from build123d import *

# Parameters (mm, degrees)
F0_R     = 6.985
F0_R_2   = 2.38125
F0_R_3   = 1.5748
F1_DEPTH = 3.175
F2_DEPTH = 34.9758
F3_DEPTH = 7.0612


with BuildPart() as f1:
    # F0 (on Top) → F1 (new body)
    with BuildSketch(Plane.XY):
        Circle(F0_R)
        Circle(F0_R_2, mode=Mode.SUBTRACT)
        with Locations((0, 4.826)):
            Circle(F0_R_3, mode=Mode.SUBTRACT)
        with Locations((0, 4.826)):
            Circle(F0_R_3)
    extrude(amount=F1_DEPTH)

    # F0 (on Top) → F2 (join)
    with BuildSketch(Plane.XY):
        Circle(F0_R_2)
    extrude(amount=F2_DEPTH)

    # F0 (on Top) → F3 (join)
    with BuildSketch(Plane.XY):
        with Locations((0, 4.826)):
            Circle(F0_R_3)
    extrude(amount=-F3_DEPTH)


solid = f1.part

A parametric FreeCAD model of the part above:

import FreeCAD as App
import Part
import Sketcher
from FreeCAD import Vector
Q = App.Units.Quantity

doc = App.newDocument("Part")
body = doc.addObject("PartDesign::Body", "Body")

# Sketch on XY plane
sketch1 = doc.addObject("Sketcher::SketchObject", "Sketch")
body.addObject(sketch1)
sketch1.AttachmentSupport = (doc.XY_Plane, [""])
sketch1.MapMode = "FlatFace"
sketch1.addGeometry(Part.Circle(Vector(0, 0, 0), Vector(0, 0, 1), 7), False)
sketch1.addGeometry(Part.Circle(Vector(0, 0, 0), Vector(0, 0, 1), 2.4), False)
sketch1.addConstraint(Sketcher.Constraint("Coincident", 0, 3, -1, 1))
sketch1.addConstraint(Sketcher.Constraint("Coincident", 1, 3, -1, 1))
sketch1.addConstraint(Sketcher.Constraint("Diameter", 0, Q("0.55 in")))
sketch1.addConstraint(Sketcher.Constraint("Diameter", 1, Q("0.1875 in")))
pad1 = doc.addObject("PartDesign::Pad", "Pad")
body.addObject(pad1)
pad1.Profile = sketch1
pad1.Length = Q("0.125 in")

# Sketch on XY plane
sketch2 = doc.addObject("Sketcher::SketchObject", "Sketch001")
body.addObject(sketch2)
sketch2.AttachmentSupport = (doc.XY_Plane, [""])
sketch2.MapMode = "FlatFace"
sketch2.addGeometry(Part.Circle(Vector(0, 0, 0), Vector(0, 0, 1), 2.4), False)
sketch2.addConstraint(Sketcher.Constraint("Coincident", 0, 3, -1, 1))
sketch2.addConstraint(Sketcher.Constraint("Diameter", 0, Q("0.1875 in")))
pad2 = doc.addObject("PartDesign::Pad", "Pad001")
body.addObject(pad2)
pad2.Profile = sketch2
pad2.Length = Q("1.377 in")

# Sketch on XY plane
sketch3 = doc.addObject("Sketcher::SketchObject", "Sketch002")
body.addObject(sketch3)
sketch3.AttachmentSupport = (doc.XY_Plane, [""])
sketch3.MapMode = "FlatFace"
sketch3.addGeometry(Part.Circle(Vector(0, 4.8, 0), Vector(0, 0, 1), 1.6), False)
sketch3.addConstraint(Sketcher.Constraint("PointOnObject", 0, 3, -2))
sketch3.addConstraint(Sketcher.Constraint("Diameter", 0, Q("0.124 in")))
sketch3.addConstraint(Sketcher.Constraint("DistanceY", -1, 1, 0, 3, Q("0.19 in")))
pad3 = doc.addObject("PartDesign::Pad", "Pad002")
body.addObject(pad3)
pad3.Profile = sketch3
pad3.Length = Q("0.278 in")
pad3.Reversed = True

doc.recompute()
